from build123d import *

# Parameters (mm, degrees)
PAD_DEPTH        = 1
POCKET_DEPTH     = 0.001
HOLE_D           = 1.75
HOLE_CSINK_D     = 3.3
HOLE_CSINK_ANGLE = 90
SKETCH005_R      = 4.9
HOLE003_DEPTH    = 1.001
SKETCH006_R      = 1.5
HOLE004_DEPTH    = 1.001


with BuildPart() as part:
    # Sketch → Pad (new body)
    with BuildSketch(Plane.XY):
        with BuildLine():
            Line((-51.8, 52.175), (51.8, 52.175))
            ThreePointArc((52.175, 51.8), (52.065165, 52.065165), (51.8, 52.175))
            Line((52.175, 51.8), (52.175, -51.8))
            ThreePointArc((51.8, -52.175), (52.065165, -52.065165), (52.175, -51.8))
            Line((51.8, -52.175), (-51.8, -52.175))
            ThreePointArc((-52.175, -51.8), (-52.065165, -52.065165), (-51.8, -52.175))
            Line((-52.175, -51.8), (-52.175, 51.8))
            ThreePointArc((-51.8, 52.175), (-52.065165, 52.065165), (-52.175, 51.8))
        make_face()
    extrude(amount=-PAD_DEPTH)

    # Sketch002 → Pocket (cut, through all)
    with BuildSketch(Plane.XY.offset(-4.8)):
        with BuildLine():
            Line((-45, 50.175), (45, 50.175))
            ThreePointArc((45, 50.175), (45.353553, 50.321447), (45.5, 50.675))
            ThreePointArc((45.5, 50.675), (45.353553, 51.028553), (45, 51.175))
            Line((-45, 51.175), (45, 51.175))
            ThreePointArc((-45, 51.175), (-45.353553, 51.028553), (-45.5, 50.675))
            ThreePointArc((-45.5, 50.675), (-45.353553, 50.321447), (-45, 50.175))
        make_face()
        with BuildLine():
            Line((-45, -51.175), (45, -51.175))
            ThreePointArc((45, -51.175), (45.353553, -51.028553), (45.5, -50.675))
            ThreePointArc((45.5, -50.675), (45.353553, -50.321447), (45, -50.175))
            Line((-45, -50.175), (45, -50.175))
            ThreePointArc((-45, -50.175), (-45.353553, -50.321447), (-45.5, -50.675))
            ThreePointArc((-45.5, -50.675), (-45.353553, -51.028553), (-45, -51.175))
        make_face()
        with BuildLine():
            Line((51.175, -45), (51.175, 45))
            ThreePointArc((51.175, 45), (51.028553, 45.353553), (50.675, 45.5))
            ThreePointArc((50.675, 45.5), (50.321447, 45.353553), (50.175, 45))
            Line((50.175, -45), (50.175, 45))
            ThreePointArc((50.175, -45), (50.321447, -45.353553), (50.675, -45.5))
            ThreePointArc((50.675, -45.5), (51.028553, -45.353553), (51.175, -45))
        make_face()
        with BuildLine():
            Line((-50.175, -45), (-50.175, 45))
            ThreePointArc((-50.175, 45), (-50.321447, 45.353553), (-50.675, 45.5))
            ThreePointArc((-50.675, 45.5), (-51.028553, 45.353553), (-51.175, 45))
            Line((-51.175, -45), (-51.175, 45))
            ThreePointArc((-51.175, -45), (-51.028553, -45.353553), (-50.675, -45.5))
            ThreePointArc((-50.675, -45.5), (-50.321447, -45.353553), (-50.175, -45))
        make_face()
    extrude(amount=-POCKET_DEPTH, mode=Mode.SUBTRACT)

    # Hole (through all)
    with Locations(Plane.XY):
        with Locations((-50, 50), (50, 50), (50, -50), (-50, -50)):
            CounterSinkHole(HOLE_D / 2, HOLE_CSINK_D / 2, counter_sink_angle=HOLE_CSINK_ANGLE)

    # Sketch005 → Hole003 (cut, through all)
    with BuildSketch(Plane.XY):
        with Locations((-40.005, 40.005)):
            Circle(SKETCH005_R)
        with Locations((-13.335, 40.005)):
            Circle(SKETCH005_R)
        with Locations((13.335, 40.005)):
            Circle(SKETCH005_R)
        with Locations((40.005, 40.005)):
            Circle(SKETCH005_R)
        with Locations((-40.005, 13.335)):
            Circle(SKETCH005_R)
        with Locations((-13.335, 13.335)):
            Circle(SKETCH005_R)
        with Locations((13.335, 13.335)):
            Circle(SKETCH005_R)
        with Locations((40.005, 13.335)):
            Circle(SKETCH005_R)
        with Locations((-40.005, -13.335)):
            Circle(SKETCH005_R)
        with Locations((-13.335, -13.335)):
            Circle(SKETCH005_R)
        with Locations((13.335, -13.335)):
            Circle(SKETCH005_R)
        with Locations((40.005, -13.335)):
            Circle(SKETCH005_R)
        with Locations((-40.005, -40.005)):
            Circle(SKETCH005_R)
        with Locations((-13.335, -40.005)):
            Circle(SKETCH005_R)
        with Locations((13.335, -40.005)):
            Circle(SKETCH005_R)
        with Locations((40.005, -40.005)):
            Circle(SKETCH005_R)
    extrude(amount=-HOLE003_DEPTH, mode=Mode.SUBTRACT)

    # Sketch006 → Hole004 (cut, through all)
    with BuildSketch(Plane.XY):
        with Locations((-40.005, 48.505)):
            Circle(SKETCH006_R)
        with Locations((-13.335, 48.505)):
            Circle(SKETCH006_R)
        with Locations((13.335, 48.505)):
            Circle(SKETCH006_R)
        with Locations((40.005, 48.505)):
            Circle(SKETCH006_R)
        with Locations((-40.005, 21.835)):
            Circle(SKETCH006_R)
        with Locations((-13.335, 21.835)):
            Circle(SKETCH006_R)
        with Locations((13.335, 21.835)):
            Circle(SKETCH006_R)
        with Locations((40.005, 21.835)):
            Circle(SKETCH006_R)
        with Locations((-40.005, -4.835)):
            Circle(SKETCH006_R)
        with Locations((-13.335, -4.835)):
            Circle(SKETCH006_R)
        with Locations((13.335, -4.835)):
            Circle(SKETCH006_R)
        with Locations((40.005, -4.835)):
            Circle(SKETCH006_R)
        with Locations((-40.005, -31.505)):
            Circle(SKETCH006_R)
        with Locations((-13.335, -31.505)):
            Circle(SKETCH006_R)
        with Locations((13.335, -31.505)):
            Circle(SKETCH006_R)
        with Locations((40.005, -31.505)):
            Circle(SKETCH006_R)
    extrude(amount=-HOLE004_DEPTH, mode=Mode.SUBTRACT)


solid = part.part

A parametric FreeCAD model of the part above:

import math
import FreeCAD as App
import Part
import Sketcher

V = App.Vector
Q = App.Units.Quantity

doc = App.newDocument("Part")
body = doc.addObject("PartDesign::Body", "Body")

# Sketch on XY plane
sketch1 = doc.addObject("Sketcher::SketchObject", "Sketch")
body.addObject(sketch1)
sketch1.AttachmentSupport = (doc.XY_Plane, [""])
sketch1.MapMode = "FlatFace"
sketch1.addGeometry([
    Part.LineSegment(V(51.8, 52.17, 0), V(-51.8, 52.17, 0)),  # 0
    Part.ArcOfCircle(Part.Circle(V(-51.8, 51.8, 0), V(0, 0, 1), 0.38), math.radians(90), math.radians(180)),  # 1
    Part.LineSegment(V(-52.17, 51.8, 0), V(-52.17, -51.8, 0)),  # 2
    Part.ArcOfCircle(Part.Circle(V(-51.8, -51.8, 0), V(0, 0, 1), 0.38), math.radians(-180), math.radians(-90)),  # 3
    Part.LineSegment(V(-51.8, -52.17, 0), V(51.8, -52.17, 0)),  # 4
    Part.ArcOfCircle(Part.Circle(V(51.8, -51.8, 0), V(0, 0, 1), 0.38), math.radians(-90), math.radians(0)),  # 5
    Part.LineSegment(V(52.17, -51.8, 0), V(52.17, 51.8, 0)),  # 6
    Part.ArcOfCircle(Part.Circle(V(51.8, 51.8, 0), V(0, 0, 1), 0.38), math.radians(0), math.radians(90)),  # 7
], False)
sketch1.addConstraint([
    Sketcher.Constraint("Tangent", 0, 2, 1, 1),
    Sketcher.Constraint("Tangent", 1, 2, 2, 1),
    Sketcher.Constraint("Tangent", 2, 2, 3, 1),
    Sketcher.Constraint("Tangent", 3, 2, 4, 1),
    Sketcher.Constraint("Tangent", 4, 2, 5, 1),
    Sketcher.Constraint("Tangent", 5, 2, 6, 1),
    Sketcher.Constraint("Tangent", 6, 2, 7, 1),
    Sketcher.Constraint("Tangent", 7, 2, 0, 1),
    Sketcher.Constraint("Horizontal", 0),
    Sketcher.Constraint("Vertical", 2),
    Sketcher.Constraint("Horizontal", 4),
    Sketcher.Constraint("Vertical", 6),
    Sketcher.Constraint("Equal", 1, 3),
    Sketcher.Constraint("Equal", 3, 5),
    Sketcher.Constraint("Equal", 5, 7),
    Sketcher.Constraint("Symmetric", 1, 3, 5, 3, -1, 1),
    Sketcher.Constraint("Equal", 4, 2),
    Sketcher.Constraint("DistanceX", 0, 2, 0, 1, Q("103.6 mm")),
    Sketcher.Constraint("Radius", 1, Q("0.375 mm")),
])
pad1 = doc.addObject("PartDesign::Pad", "Pad")
body.addObject(pad1)
pad1.Profile = sketch1
pad1.Length = 1
pad1.Reversed = True

# Sketch on XY plane
sketch2 = doc.addObject("Sketcher::SketchObject", "Sketch001")
body.addObject(sketch2)
sketch2.AttachmentSupport = (doc.XY_Plane, [""])
sketch2.MapMode = "FlatFace"
sketch2.AttachmentOffset = App.Placement(V(0, 0, -4.8), App.Rotation())
sketch2.addGeometry([
    Part.LineSegment(V(-45, 50.2, 0), V(45, 50.2, 0)),  # 0
    Part.ArcOfCircle(Part.Circle(V(45, 50.7, 0), V(0, 0, 1), 0.5), math.radians(-90), math.radians(0)),  # 1
    Part.ArcOfCircle(Part.Circle(V(45, 50.7, 0), V(0, 0, 1), 0.5), math.radians(0), math.radians(90)),  # 2
    Part.LineSegment(V(45, 51.2, 0), V(-45, 51.2, 0)),  # 3
    Part.ArcOfCircle(Part.Circle(V(-45, 50.7, 0), V(0, 0, 1), 0.5), math.radians(90), math.radians(180)),  # 4
    Part.ArcOfCircle(Part.Circle(V(-45, 50.7, 0), V(0, 0, 1), 0.5), math.radians(-180), math.radians(-90)),  # 5
    Part.LineSegment(V(-45, -51.2, 0), V(45, -51.2, 0)),  # 6
    Part.ArcOfCircle(Part.Circle(V(45, -50.7, 0), V(0, 0, 1), 0.5), math.radians(-90), math.radians(0)),  # 7
    Part.ArcOfCircle(Part.Circle(V(45, -50.7, 0), V(0, 0, 1), 0.5), math.radians(0), math.radians(90)),  # 8
    Part.LineSegment(V(45, -50.2, 0), V(-45, -50.2, 0)),  # 9
    Part.ArcOfCircle(Part.Circle(V(-45, -50.7, 0), V(0, 0, 1), 0.5), math.radians(90), math.radians(180)),  # 10
    Part.ArcOfCircle(Part.Circle(V(-45, -50.7, 0), V(0, 0, 1), 0.5), math.radians(-180), math.radians(-90)),  # 11
    Part.LineSegment(V(51.2, -45, 0), V(51.2, 45, 0)),  # 12
    Part.ArcOfCircle(Part.Circle(V(50.7, 45, 0), V(0, 0, 1), 0.5), math.radians(0), math.radians(90)),  # 13
    Part.ArcOfCircle(Part.Circle(V(50.7, 45, 0), V(0, 0, 1), 0.5), math.radians(90), math.radians(180)),  # 14
    Part.LineSegment(V(50.2, 45, 0), V(50.2, -45, 0)),  # 15
    Part.ArcOfCircle(Part.Circle(V(50.7, -45, 0), V(0, 0, 1), 0.5), math.radians(-180), math.radians(-90)),  # 16
    Part.ArcOfCircle(Part.Circle(V(50.7, -45, 0), V(0, 0, 1), 0.5), math.radians(-90), math.radians(0)),  # 17
    Part.LineSegment(V(-50.2, -45, 0), V(-50.2, 45, 0)),  # 18
    Part.ArcOfCircle(Part.Circle(V(-50.7, 45, 0), V(0, 0, 1), 0.5), math.radians(0), math.radians(90)),  # 19
    Part.ArcOfCircle(Part.Circle(V(-50.7, 45, 0), V(0, 0, 1), 0.5), math.radians(90), math.radians(180)),  # 20
    Part.LineSegment(V(-51.2, 45, 0), V(-51.2, -45, 0)),  # 21
    Part.ArcOfCircle(Part.Circle(V(-50.7, -45, 0), V(0, 0, 1), 0.5), math.radians(-180), math.radians(-90)),  # 22
    Part.ArcOfCircle(Part.Circle(V(-50.7, -45, 0), V(0, 0, 1), 0.5), math.radians(-90), math.radians(0)),  # 23
], False)
sketch2.addConstraint([
    Sketcher.Constraint("Coincident", 0, 2, 1, 1),
    Sketcher.Constraint("Coincident", 1, 2, 2, 1),
    Sketcher.Constraint("Coincident", 2, 2, 3, 1),
    Sketcher.Constraint("Coincident", 3, 2, 4, 1),
    Sketcher.Constraint("Coincident", 4, 2, 5, 1),
    Sketcher.Constraint("Coincident", 5, 2, 0, 1),
    Sketcher.Constraint("Coincident", 6, 2, 7, 1),
    Sketcher.Constraint("Coincident", 7, 2, 8, 1),
    Sketcher.Constraint("Coincident", 8, 2, 9, 1),
    Sketcher.Constraint("Coincident", 9, 2, 10, 1),
    Sketcher.Constraint("Coincident", 10, 2, 11, 1),
    Sketcher.Constraint("Coincident", 11, 2, 6, 1),
    Sketcher.Constraint("Coincident", 12, 2, 13, 1),
    Sketcher.Constraint("Coincident", 13, 2, 14, 1),
    Sketcher.Constraint("Coincident", 14, 2, 15, 1),
    Sketcher.Constraint("Coincident", 15, 2, 16, 1),
    Sketcher.Constraint("Coincident", 16, 2, 17, 1),
    Sketcher.Constraint("Coincident", 17, 2, 12, 1),
    Sketcher.Constraint("Coincident", 18, 2, 19, 1),
    Sketcher.Constraint("Coincident", 19, 2, 20, 1),
    Sketcher.Constraint("Coincident", 20, 2, 21, 1),
    Sketcher.Constraint("Coincident", 21, 2, 22, 1),
    Sketcher.Constraint("Coincident", 22, 2, 23, 1),
    Sketcher.Constraint("Coincident", 23, 2, 18, 1),
    Sketcher.Constraint("Horizontal", 0),
    Sketcher.Constraint("Horizontal", 3),
    Sketcher.Constraint("Horizontal", 6),
    Sketcher.Constraint("Horizontal", 9),
    Sketcher.Constraint("Vertical", 12),
    Sketcher.Constraint("Vertical", 15),
    Sketcher.Constraint("Vertical", 18),
    Sketcher.Constraint("Vertical", 21),
    Sketcher.Constraint("Coincident", 2, 3, 1, 3),
    Sketcher.Constraint("Coincident", 5, 3, 4, 3),
    Sketcher.Constraint("Coincident", 8, 3, 7, 3),
    Sketcher.Constraint("Coincident", 11, 3, 10, 3),
    Sketcher.Constraint("Coincident", 14, 3, 13, 3),
    Sketcher.Constraint("Coincident", 17, 3, 16, 3),
    Sketcher.Constraint("Coincident", 20, 3, 19, 3),
    Sketcher.Constraint("Coincident", 23, 3, 22, 3),
    Sketcher.Constraint("Equal", 5, 7),
    Sketcher.Constraint("Equal", 11, 13),
    Sketcher.Constraint("Equal", 17, 19),
    Sketcher.Constraint("Symmetric", 4, 3, 7, 3, -1, 1),
    Sketcher.Constraint("Symmetric", 16, 3, 19, 3, -1, 1),
    Sketcher.Constraint("Symmetric", 1, 2, 10, 2, -1, 1),
    Sketcher.Constraint("Symmetric", 13, 2, 22, 2, -1, 1),
    Sketcher.Constraint("Symmetric", 1, 2, 4, 2, -2),
    Sketcher.Constraint("Symmetric", 13, 2, 19, 2, -2),
    Sketcher.Constraint("Horizontal", 5, 3, 1, 2),
    Sketcher.Constraint("Horizontal", 11, 3, 7, 2),
    Sketcher.Constraint("Horizontal", 20, 3, 12, 2),
    Sketcher.Constraint("Horizontal", 12, 2, 14, 2),
    Sketcher.Constraint("Horizontal", 23, 3, 15, 2),
    Sketcher.Constraint("Horizontal", 15, 2, 17, 2),
    Sketcher.Constraint("Horizontal", 14, 2, 18, 2),
    Sketcher.Constraint("Horizontal", 18, 2, 20, 2),
    Sketcher.Constraint("Horizontal", 17, 2, 21, 2),
    Sketcher.Constraint("Horizontal", 21, 2, 23, 2),
    Sketcher.Constraint("Vertical", 8, 3, 0, 2),
    Sketcher.Constraint("Vertical", 0, 2, 2, 2),
    Sketcher.Constraint("Vertical", 11, 3, 3, 2),
    Sketcher.Constraint("Vertical", 3, 2, 5, 2),
    Sketcher.Constraint("Vertical", 2, 2, 6, 2),
    Sketcher.Constraint("Vertical", 6, 2, 8, 2),
    Sketcher.Constraint("Vertical", 5, 2, 9, 2),
    Sketcher.Constraint("Vertical", 9, 2, 11, 2),
    Sketcher.Constraint("Vertical", 17, 3, 13, 2),
    Sketcher.Constraint("Vertical", 13, 2, 16, 2),
    Sketcher.Constraint("Equal", 9, 12),
    Sketcher.Constraint("Radius", 1, Q("0.500001 mm")),
    Sketcher.Constraint("DistanceX", 0, 1, 0, 2, Q("90 mm")),
    Sketcher.Constraint("DistanceY", 7, 3, 1, 3, Q("101.35 mm")),
    Sketcher.Constraint("DistanceX", -1, 1, 13, 3, Q("50.674999 mm")),
])
pocket1 = doc.addObject("PartDesign::Pocket", "Pocket")
body.addObject(pocket1)
pocket1.Profile = sketch2
pocket1.Type = "ThroughAll"

# Sketch on XY plane
sketch3 = doc.addObject("Sketcher::SketchObject", "Sketch002")
body.addObject(sketch3)
sketch3.AttachmentSupport = (doc.XY_Plane, [""])
sketch3.MapMode = "FlatFace"
sketch3.addGeometry([
    Part.Circle(V(-50, 50, 0), V(0, 0, 1), 0.9),
    Part.Circle(V(50, 50, 0), V(0, 0, 1), 0.9),
    Part.Circle(V(50, -50, 0), V(0, 0, 1), 0.9),
    Part.Circle(V(-50, -50, 0), V(0, 0, 1), 0.9),
], False)
sketch3.addConstraint([
    Sketcher.Constraint("Equal", 0, 1),
    Sketcher.Constraint("Equal", 1, 2),
    Sketcher.Constraint("Equal", 2, 3),
    Sketcher.Constraint("Symmetric", 0, 3, 2, 3, -1, 1),
    Sketcher.Constraint("Symmetric", 1, 3, 3, 3, -1, 1),
    Sketcher.Constraint("Symmetric", 0, 3, 1, 3, -2),
    Sketcher.Constraint("Diameter", 0, Q("1.75 mm")),
    Sketcher.Constraint("DistanceX", 0, 3, -1, 1, Q("50 mm")),
    Sketcher.Constraint("DistanceY", -1, 1, 0, 3, Q("50 mm")),
])
doc.recompute()
hole = doc.addObject("PartDesign::Hole", "Hole")
body.addObject(hole)
hole.Profile = sketch3
hole.ThreadType = "None"
hole.Diameter = 1.75
hole.DepthType = "ThroughAll"
hole.HoleCutType = "Countersink"
hole.HoleCutDiameter = 3.3
hole.HoleCutCountersinkAngle = 90

# Sketch on XY plane
sketch4 = doc.addObject("Sketcher::SketchObject", "Sketch003")
body.addObject(sketch4)
sketch4.AttachmentSupport = (doc.XY_Plane, [""])
sketch4.MapMode = "FlatFace"
sketch4.addGeometry([
    Part.Circle(V(-40, 40, 0), V(0, 0, 1), 4.9),  # 0
    Part.Circle(V(-13.3, 40, 0), V(0, 0, 1), 4.9),  # 1
    Part.Circle(V(13.3, 40, 0), V(0, 0, 1), 4.9),  # 2
    Part.Circle(V(40, 40, 0), V(0, 0, 1), 4.9),  # 3
    Part.Circle(V(-40, 13.3, 0), V(0, 0, 1), 4.9),  # 4
    Part.Circle(V(-13.3, 13.3, 0), V(0, 0, 1), 4.9),  # 5
    Part.Circle(V(13.3, 13.3, 0), V(0, 0, 1), 4.9),  # 6
    Part.Circle(V(40, 13.3, 0), V(0, 0, 1), 4.9),  # 7
    Part.Circle(V(-40, -13.3, 0), V(0, 0, 1), 4.9),  # 8
    Part.Circle(V(-13.3, -13.3, 0), V(0, 0, 1), 4.9),  # 9
    Part.Circle(V(13.3, -13.3, 0), V(0, 0, 1), 4.9),  # 10
    Part.Circle(V(40, -13.3, 0), V(0, 0, 1), 4.9),  # 11
    Part.Circle(V(-40, -40, 0), V(0, 0, 1), 4.9),  # 12
    Part.Circle(V(-13.3, -40, 0), V(0, 0, 1), 4.9),  # 13
    Part.Circle(V(13.3, -40, 0), V(0, 0, 1), 4.9),  # 14
    Part.Circle(V(40, -40, 0), V(0, 0, 1), 4.9),  # 15
], False)
sketch4.addConstraint([
    Sketcher.Constraint("Equal", 0, 1),
    Sketcher.Constraint("Equal", 1, 2),
    Sketcher.Constraint("Equal", 2, 3),
    Sketcher.Constraint("Equal", 3, 4),
    Sketcher.Constraint("Equal", 4, 5),
    Sketcher.Constraint("Equal", 5, 6),
    Sketcher.Constraint("Equal", 6, 7),
    Sketcher.Constraint("Equal", 7, 8),
    Sketcher.Constraint("Equal", 8, 9),
    Sketcher.Constraint("Equal", 9, 10),
    Sketcher.Constraint("Equal", 10, 11),
    Sketcher.Constraint("Equal", 11, 12),
    Sketcher.Constraint("Equal", 12, 13),
    Sketcher.Constraint("Equal", 13, 14),
    Sketcher.Constraint("Equal", 14, 15),
    Sketcher.Constraint("Symmetric", 7, 3, 8, 3, -1, 1),
    Sketcher.Constraint("Symmetric", 6, 3, 9, 3, -1, 1),
    Sketcher.Constraint("Symmetric", 5, 3, 10, 3, -1, 1),
    Sketcher.Constraint("Symmetric", 4, 3, 11, 3, -1, 1),
    Sketcher.Constraint("Symmetric", 3, 3, 12, 3, -1, 1),
    Sketcher.Constraint("Symmetric", 2, 3, 13, 3, -1, 1),
    Sketcher.Constraint("Symmetric", 1, 3, 14, 3, -1, 1),
    Sketcher.Constraint("Symmetric", 0, 3, 15, 3, -1, 1),
    Sketcher.Constraint("Symmetric", 1, 3, 2, 3, -2),
    Sketcher.Constraint("Symmetric", 0, 3, 3, 3, -2),
    Sketcher.Constraint("Symmetric", 5, 3, 6, 3, -2),
    Sketcher.Constraint("Symmetric", 4, 3, 7, 3, -2),
    Sketcher.Constraint("Horizontal", 0, 3, 1, 3),
    Sketcher.Constraint("Horizontal", 4, 3, 5, 3),
    Sketcher.Constraint("Vertical", 0, 3, 4, 3),
    Sketcher.Constraint("Vertical", 1, 3, 5, 3),
    Sketcher.Constraint("Diameter", 0, Q("9.8 mm")),
    Sketcher.Constraint("DistanceX", 0, 3, 1, 3, Q("26.67 mm")),
    Sketcher.Constraint("DistanceX", 1, 3, 2, 3, Q("26.67 mm")),
    Sketcher.Constraint("DistanceY", 4, 3, 0, 3, Q("26.67 mm")),
    Sketcher.Constraint("DistanceY", 8, 3, 4, 3, Q("26.67 mm")),
])
pocket2 = doc.addObject("PartDesign::Pocket", "Pocket001")
body.addObject(pocket2)
pocket2.Profile = sketch4
pocket2.Type = "ThroughAll"

# Sketch on XY plane
sketch5 = doc.addObject("Sketcher::SketchObject", "Sketch004")
body.addObject(sketch5)
sketch5.AttachmentSupport = (doc.XY_Plane, [""])
sketch5.MapMode = "FlatFace"
sketch5.addGeometry([
    Part.Circle(V(-40, 48.5, 0), V(0, 0, 1), 1.5),  # 0
    Part.Circle(V(-13.3, 48.5, 0), V(0, 0, 1), 1.5),  # 1
    Part.Circle(V(13.3, 48.5, 0), V(0, 0, 1), 1.5),  # 2
    Part.Circle(V(40, 48.5, 0), V(0, 0, 1), 1.5),  # 3
    Part.Circle(V(-40, 21.8, 0), V(0, 0, 1), 1.5),  # 4
    Part.Circle(V(-13.3, 21.8, 0), V(0, 0, 1), 1.5),  # 5
    Part.Circle(V(13.3, 21.8, 0), V(0, 0, 1), 1.5),  # 6
    Part.Circle(V(40, 21.8, 0), V(0, 0, 1), 1.5),  # 7
    Part.Circle(V(-40, -4.8, 0), V(0, 0, 1), 1.5),  # 8
    Part.Circle(V(-13.3, -4.8, 0), V(0, 0, 1), 1.5),  # 9
    Part.Circle(V(13.3, -4.8, 0), V(0, 0, 1), 1.5),  # 10
    Part.Circle(V(40, -4.8, 0), V(0, 0, 1), 1.5),  # 11
    Part.Circle(V(-40, -31.5, 0), V(0, 0, 1), 1.5),  # 12
    Part.Circle(V(-13.3, -31.5, 0), V(0, 0, 1), 1.5),  # 13
    Part.Circle(V(13.3, -31.5, 0), V(0, 0, 1), 1.5),  # 14
    Part.Circle(V(40, -31.5, 0), V(0, 0, 1), 1.5),  # 15
], False)
sketch5.addConstraint([
    Sketcher.Constraint("Equal", 0, 1),
    Sketcher.Constraint("Equal", 1, 2),
    Sketcher.Constraint("Equal", 2, 3),
    Sketcher.Constraint("Equal", 3, 4),
    Sketcher.Constraint("Equal", 4, 5),
    Sketcher.Constraint("Equal", 5, 6),
    Sketcher.Constraint("Equal", 6, 7),
    Sketcher.Constraint("Equal", 7, 8),
    Sketcher.Constraint("Equal", 8, 9),
    Sketcher.Constraint("Equal", 9, 10),
    Sketcher.Constraint("Equal", 10, 11),
    Sketcher.Constraint("Equal", 11, 12),
    Sketcher.Constraint("Equal", 12, 13),
    Sketcher.Constraint("Equal", 13, 14),
    Sketcher.Constraint("Equal", 14, 15),
    Sketcher.Constraint("Symmetric", 1, 3, 2, 3, -2),
    Sketcher.Constraint("Symmetric", 0, 3, 3, 3, -2),
    Sketcher.Constraint("Symmetric", 5, 3, 6, 3, -2),
    Sketcher.Constraint("Symmetric", 4, 3, 7, 3, -2),
    Sketcher.Constraint("Symmetric", 9, 3, 10, 3, -2),
    Sketcher.Constraint("Symmetric", 8, 3, 11, 3, -2),
    Sketcher.Constraint("Symmetric", 13, 3, 14, 3, -2),
    Sketcher.Constraint("Symmetric", 12, 3, 15, 3, -2),
    Sketcher.Constraint("Horizontal", 0, 3, 1, 3),
    Sketcher.Constraint("Horizontal", 4, 3, 5, 3),
    Sketcher.Constraint("Horizontal", 8, 3, 9, 3),
    Sketcher.Constraint("Horizontal", 12, 3, 13, 3),
    Sketcher.Constraint("Vertical", 0, 3, 4, 3),
    Sketcher.Constraint("Vertical", 1, 3, 5, 3),
    Sketcher.Constraint("Vertical", 4, 3, 8, 3),
    Sketcher.Constraint("Vertical", 5, 3, 9, 3),
    Sketcher.Constraint("Vertical", 8, 3, 12, 3),
    Sketcher.Constraint("Vertical", 9, 3, 13, 3),
    Sketcher.Constraint("Diameter", 0, Q("3 mm")),
    Sketcher.Constraint("DistanceX", 0, 3, 1, 3, Q("26.67 mm")),
    Sketcher.Constraint("DistanceX", 1, 3, 2, 3, Q("26.67 mm")),
    Sketcher.Constraint("DistanceY", 4, 3, 0, 3, Q("26.67 mm")),
    Sketcher.Constraint("DistanceY", 8, 3, 4, 3, Q("26.67 mm")),
    Sketcher.Constraint("DistanceY", 12, 3, 8, 3, Q("26.67 mm")),
    Sketcher.Constraint("DistanceY", -1, 1, 0, 3, Q("48.505 mm")),
])
pocket3 = doc.addObject("PartDesign::Pocket", "Pocket002")
body.addObject(pocket3)
pocket3.Profile = sketch5
pocket3.Type = "ThroughAll"

doc.recompute()
